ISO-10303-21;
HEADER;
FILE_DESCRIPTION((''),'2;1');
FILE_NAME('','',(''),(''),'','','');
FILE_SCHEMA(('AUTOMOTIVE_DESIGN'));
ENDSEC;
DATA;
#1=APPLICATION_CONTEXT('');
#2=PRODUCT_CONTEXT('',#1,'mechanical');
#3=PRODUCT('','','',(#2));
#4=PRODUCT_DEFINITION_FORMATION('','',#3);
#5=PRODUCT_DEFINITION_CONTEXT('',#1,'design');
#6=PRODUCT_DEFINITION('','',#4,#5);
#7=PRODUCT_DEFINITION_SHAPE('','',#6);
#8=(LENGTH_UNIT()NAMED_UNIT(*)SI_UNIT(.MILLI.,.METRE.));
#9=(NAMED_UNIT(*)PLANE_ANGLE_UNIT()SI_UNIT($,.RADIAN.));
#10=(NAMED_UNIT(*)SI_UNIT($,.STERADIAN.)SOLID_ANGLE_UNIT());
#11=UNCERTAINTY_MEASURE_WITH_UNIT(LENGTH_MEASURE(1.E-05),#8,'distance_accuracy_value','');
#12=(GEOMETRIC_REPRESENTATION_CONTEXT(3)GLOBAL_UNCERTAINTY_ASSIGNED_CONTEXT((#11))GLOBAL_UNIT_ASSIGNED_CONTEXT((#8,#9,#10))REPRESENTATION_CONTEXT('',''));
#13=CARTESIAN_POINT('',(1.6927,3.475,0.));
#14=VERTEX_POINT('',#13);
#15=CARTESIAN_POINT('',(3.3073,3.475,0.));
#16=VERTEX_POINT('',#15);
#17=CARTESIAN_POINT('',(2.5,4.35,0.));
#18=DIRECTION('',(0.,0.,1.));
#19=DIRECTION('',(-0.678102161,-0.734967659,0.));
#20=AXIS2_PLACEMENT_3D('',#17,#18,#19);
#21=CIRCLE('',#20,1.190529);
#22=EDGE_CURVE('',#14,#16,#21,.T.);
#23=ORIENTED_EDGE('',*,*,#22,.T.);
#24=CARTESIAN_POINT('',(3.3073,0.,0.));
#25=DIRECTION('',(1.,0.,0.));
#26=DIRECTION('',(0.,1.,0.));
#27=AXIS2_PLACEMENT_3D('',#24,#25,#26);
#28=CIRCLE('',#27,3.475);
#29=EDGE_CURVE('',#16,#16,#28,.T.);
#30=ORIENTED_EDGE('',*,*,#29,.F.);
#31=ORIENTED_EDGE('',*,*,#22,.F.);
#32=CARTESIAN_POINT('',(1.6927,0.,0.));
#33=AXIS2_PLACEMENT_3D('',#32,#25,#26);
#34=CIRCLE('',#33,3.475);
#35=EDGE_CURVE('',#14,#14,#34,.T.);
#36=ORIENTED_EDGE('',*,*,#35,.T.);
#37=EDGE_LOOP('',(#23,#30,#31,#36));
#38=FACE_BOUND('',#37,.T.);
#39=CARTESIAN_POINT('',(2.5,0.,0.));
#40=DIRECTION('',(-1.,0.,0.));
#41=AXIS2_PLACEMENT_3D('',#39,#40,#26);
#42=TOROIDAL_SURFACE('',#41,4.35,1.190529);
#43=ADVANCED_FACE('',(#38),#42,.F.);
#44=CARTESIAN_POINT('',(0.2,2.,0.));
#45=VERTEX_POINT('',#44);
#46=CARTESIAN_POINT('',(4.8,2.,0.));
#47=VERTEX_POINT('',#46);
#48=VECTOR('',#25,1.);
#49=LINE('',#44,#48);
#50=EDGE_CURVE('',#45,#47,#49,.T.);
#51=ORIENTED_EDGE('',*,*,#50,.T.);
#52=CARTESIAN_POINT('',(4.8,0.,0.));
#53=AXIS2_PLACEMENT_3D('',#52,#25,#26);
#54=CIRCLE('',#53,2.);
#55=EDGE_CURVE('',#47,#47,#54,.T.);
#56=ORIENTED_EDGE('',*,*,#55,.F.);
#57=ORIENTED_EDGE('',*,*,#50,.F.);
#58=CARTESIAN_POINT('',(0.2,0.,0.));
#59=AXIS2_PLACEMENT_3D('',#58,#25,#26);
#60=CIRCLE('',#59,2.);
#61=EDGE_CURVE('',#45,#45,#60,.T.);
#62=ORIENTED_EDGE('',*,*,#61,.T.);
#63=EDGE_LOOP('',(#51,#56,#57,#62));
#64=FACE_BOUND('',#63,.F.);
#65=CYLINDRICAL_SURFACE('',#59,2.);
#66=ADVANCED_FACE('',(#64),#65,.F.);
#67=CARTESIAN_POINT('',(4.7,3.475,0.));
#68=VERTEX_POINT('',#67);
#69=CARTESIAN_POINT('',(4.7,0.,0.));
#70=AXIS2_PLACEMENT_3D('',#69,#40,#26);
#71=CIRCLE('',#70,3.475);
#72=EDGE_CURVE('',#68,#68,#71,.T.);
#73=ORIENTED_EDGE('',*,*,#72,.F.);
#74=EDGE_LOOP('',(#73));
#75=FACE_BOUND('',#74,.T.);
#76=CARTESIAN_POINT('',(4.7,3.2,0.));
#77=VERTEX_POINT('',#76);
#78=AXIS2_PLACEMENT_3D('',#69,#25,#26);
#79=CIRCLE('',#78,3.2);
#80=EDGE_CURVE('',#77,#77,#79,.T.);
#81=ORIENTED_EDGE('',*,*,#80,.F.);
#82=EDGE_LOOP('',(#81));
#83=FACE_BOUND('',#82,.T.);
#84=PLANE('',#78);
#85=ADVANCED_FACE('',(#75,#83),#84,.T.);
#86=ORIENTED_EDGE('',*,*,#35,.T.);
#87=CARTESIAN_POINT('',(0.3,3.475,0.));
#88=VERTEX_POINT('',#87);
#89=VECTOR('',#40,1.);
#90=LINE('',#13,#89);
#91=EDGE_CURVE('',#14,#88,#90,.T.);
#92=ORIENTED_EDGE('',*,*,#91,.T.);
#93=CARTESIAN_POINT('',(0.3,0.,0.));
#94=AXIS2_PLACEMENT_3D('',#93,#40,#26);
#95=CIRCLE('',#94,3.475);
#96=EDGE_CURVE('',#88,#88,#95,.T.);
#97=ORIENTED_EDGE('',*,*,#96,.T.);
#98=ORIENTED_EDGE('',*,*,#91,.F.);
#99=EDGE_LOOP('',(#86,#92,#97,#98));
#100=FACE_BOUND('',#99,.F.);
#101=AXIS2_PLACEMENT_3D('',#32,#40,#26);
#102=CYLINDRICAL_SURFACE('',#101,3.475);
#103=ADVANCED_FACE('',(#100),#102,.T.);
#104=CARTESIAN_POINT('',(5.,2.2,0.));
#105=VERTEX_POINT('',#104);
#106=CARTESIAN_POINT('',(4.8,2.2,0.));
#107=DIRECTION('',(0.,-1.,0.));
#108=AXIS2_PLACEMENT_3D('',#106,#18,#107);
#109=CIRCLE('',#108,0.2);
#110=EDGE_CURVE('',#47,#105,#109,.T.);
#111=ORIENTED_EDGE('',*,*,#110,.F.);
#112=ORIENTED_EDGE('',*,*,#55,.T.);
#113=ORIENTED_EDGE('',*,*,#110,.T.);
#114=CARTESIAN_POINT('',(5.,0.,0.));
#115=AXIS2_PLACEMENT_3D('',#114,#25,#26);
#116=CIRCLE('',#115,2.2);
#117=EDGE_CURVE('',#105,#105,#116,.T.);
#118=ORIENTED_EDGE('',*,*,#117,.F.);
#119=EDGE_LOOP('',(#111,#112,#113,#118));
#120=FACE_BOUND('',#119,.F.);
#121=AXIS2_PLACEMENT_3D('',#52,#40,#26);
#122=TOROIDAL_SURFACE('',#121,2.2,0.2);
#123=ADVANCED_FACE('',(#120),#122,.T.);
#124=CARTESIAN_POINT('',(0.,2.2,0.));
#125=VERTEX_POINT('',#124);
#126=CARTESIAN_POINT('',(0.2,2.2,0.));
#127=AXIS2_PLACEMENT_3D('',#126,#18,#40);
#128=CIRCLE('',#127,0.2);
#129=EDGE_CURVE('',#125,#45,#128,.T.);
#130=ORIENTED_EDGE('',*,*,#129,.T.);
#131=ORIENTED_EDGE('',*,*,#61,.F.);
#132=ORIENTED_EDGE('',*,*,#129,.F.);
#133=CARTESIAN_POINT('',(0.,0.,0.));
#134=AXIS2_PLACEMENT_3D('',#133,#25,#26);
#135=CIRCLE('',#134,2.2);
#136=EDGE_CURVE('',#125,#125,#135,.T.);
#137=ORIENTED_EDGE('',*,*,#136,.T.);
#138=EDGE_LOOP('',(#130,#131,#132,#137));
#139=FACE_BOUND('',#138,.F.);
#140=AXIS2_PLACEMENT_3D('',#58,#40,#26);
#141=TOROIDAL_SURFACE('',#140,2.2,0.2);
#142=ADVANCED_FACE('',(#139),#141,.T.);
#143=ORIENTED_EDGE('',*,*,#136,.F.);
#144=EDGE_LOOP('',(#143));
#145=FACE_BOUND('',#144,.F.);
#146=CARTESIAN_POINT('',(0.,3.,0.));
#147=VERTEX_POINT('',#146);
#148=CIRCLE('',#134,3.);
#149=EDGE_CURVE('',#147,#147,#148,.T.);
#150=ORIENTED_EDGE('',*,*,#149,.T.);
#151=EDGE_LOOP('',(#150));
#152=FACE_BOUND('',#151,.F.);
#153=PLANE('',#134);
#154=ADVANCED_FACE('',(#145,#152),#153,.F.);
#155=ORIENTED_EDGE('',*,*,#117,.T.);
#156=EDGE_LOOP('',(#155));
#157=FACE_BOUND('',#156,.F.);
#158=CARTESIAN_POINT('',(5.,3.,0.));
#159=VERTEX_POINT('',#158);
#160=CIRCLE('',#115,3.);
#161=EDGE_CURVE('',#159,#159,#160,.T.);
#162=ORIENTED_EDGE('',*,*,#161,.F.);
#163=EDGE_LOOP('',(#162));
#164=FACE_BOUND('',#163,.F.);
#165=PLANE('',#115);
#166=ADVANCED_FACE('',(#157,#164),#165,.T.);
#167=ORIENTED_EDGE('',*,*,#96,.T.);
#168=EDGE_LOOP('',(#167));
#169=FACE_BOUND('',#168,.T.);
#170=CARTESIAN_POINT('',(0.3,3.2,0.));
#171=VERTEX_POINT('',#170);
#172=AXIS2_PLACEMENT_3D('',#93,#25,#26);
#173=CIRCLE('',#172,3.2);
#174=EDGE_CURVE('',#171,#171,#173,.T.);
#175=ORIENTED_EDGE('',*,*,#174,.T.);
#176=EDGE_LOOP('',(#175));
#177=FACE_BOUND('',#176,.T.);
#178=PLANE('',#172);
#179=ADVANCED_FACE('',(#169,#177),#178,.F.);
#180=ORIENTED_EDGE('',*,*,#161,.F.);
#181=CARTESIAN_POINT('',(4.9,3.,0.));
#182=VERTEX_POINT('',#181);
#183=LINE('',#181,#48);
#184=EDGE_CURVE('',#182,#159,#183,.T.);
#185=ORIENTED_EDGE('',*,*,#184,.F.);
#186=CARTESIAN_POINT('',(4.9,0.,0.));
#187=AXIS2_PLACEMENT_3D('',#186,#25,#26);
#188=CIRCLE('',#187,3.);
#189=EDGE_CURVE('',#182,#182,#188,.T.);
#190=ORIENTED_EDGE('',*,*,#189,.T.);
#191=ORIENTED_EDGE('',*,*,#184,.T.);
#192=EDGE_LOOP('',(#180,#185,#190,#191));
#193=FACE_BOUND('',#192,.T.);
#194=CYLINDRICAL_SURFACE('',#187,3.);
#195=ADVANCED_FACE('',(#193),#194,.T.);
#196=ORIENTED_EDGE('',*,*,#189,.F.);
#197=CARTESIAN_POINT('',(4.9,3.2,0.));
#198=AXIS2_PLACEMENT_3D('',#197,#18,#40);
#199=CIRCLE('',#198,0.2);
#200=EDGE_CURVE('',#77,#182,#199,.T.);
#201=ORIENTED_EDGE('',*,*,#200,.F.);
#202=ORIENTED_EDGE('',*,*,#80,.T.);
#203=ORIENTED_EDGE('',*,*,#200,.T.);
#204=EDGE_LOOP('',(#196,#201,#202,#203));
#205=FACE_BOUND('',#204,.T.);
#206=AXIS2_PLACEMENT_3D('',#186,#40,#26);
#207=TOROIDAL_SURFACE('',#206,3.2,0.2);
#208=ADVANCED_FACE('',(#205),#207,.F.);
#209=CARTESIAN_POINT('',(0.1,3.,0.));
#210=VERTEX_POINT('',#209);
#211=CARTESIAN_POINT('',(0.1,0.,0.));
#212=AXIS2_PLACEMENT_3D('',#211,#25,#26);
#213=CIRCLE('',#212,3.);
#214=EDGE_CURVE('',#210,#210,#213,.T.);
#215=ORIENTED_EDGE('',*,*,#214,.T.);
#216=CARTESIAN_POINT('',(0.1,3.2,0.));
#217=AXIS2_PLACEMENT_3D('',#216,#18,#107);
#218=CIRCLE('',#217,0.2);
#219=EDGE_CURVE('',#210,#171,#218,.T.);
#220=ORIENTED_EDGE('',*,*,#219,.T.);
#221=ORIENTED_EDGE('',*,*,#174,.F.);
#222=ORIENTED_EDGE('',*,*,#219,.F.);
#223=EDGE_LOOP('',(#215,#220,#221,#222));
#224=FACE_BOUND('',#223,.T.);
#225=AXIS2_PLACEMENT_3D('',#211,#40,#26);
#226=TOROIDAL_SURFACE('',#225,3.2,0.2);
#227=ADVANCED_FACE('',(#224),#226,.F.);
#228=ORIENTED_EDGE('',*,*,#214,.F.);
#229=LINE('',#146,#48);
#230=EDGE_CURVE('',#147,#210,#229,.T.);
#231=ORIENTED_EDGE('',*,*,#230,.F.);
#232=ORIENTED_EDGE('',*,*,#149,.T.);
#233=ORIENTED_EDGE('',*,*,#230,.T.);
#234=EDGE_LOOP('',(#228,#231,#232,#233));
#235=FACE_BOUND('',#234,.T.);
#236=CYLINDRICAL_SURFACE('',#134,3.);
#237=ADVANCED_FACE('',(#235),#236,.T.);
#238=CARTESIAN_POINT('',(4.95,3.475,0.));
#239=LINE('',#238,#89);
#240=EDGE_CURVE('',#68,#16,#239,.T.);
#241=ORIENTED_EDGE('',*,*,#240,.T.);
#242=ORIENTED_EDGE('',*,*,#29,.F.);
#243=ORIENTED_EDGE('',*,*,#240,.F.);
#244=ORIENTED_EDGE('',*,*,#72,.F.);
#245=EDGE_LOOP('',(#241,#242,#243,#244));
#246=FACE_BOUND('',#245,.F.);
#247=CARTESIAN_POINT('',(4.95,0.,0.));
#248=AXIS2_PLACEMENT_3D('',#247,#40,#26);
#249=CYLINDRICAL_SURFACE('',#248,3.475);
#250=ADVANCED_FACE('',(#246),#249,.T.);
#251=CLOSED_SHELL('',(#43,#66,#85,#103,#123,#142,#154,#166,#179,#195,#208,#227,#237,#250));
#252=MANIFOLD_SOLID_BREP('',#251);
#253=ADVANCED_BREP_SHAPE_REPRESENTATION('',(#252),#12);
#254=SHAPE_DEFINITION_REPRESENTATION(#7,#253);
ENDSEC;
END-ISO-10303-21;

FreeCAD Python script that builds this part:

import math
import FreeCAD as App
import Part
import Sketcher

V = App.Vector

doc = App.newDocument("Part")
body = doc.addObject("PartDesign::Body", "Body")

sketch1 = doc.addObject("Sketcher::SketchObject", "Sketch")
body.addObject(sketch1)
sketch1.AttachmentSupport = (doc.XY_Plane, [""])
sketch1.MapMode = "FlatFace"
sketch1.addGeometry([
    Part.ArcOfCircle(Part.Circle(V(0.05, 3.425, 0), V(0, 0, 1), 0.05), math.radians(90), math.radians(180)),
    Part.LineSegment(V(0, 3.425, 0), V(0, 2.2, 0)),
    Part.ArcOfCircle(Part.Circle(V(0.2, 2.2, 0), V(0, 0, 1), 0.2), math.radians(180), math.radians(270)),
    Part.LineSegment(V(0.2, 2, 0), V(4.8, 2, 0)),
    Part.ArcOfCircle(Part.Circle(V(4.8, 2.2, 0), V(0, 0, 1), 0.2), math.radians(-90), math.radians(0)),
    Part.LineSegment(V(5, 2.2, 0), V(5, 3.425, 0)),
    Part.ArcOfCircle(Part.Circle(V(4.95, 3.425, 0), V(0, 0, 1), 0.05), math.radians(0), math.radians(90)),
    Part.LineSegment(V(4.95, 3.475, 0), V(3.3073, 3.475, 0)),
    Part.ArcOfCircle(Part.Circle(V(2.5, 4.35, 0), V(0, 0, 1), 1.190529), math.radians(-132.695517), math.radians(-47.304483)),
    Part.LineSegment(V(1.6927, 3.475, 0), V(0.05, 3.475, 0)),
], False)
sketch1.addConstraint([
    Sketcher.Constraint("Tangent", 0, 2, 1, 1),
    Sketcher.Constraint("Tangent", 1, 2, 2, 1),
    Sketcher.Constraint("Tangent", 2, 2, 3, 1),
    Sketcher.Constraint("Tangent", 3, 2, 4, 1),
    Sketcher.Constraint("Tangent", 4, 2, 5, 1),
    Sketcher.Constraint("Tangent", 5, 2, 6, 1),
    Sketcher.Constraint("Tangent", 6, 2, 7, 1),
    Sketcher.Constraint("Coincident", 7, 2, 8, 2),
    Sketcher.Constraint("Coincident", 8, 1, 9, 1),
    Sketcher.Constraint("Tangent", 9, 2, 0, 1),
    Sketcher.Constraint("Vertical", 1),
    Sketcher.Constraint("Horizontal", 3),
    Sketcher.Constraint("Vertical", 5),
    Sketcher.Constraint("Horizontal", 7),
    Sketcher.Constraint("Horizontal", 9),
    Sketcher.Constraint("Equal", 2, 4),
    Sketcher.Constraint("Equal", 0, 6),
    Sketcher.Constraint("PointOnObject", 0, 2, -2),
    Sketcher.Constraint("Horizontal", 0, 3, 6, 3),
    Sketcher.Constraint("Equal", 7, 9),
    Sketcher.Constraint("Radius", 2, 0.2),
    Sketcher.Constraint("Radius", 0, 0.05),
    Sketcher.Constraint("DistanceX", 3, 1, 3, 2, 4.6),
    Sketcher.Constraint("DistanceY", -1, 1, 2, 2, 2.0),
    Sketcher.Constraint("Radius", 8, 1.1905),
    Sketcher.Constraint("DistanceY", 1, 2, 1, 1, 1.225),
    Sketcher.Constraint("DistanceY", -1, 1, 8, 3, 4.35),
])
revolution = doc.addObject("PartDesign::Revolution", "Revolution")
body.addObject(revolution)
revolution.Profile = sketch1
revolution.ReferenceAxis = (sketch1, ["H_Axis"])
revolution.Angle = 360

sketch2 = doc.addObject("Sketcher::SketchObject", "Sketch001")
body.addObject(sketch2)
sketch2.AttachmentSupport = (doc.XY_Plane, [""])
sketch2.MapMode = "FlatFace"
sketch2.addGeometry([
    Part.LineSegment(V(5, 7.35, 0), V(0, 7.35, 0)),
    Part.LineSegment(V(0, 7.35, 0), V(0, 3, 0)),
    Part.LineSegment(V(0, 3, 0), V(0.1, 3, 0)),
    Part.ArcOfCircle(Part.Circle(V(0.1, 3.2, 0), V(0, 0, 1), 0.2), math.radians(-90), math.radians(0)),
    Part.LineSegment(V(0.3, 3.2, 0), V(0.3, 7.15, 0)),
    Part.LineSegment(V(0.3, 7.15, 0), V(4.7, 7.15, 0)),
    Part.LineSegment(V(4.7, 7.15, 0), V(4.7, 3.2, 0)),
    Part.ArcOfCircle(Part.Circle(V(4.9, 3.2, 0), V(0, 0, 1), 0.2), math.radians(180), math.radians(270)),
    Part.LineSegment(V(4.9, 3, 0), V(5, 3, 0)),
    Part.LineSegment(V(5, 3, 0), V(5, 7.35, 0)),
], False)
sketch2.addConstraint([
    Sketcher.Constraint("Coincident", 0, 2, 1, 1),
    Sketcher.Constraint("Coincident", 1, 2, 2, 1),
    Sketcher.Constraint("Tangent", 2, 2, 3, 1),
    Sketcher.Constraint("Tangent", 3, 2, 4, 1),
    Sketcher.Constraint("Coincident", 4, 2, 5, 1),
    Sketcher.Constraint("Coincident", 5, 2, 6, 1),
    Sketcher.Constraint("Tangent", 6, 2, 7, 1),
    Sketcher.Constraint("Tangent", 7, 2, 8, 1),
    Sketcher.Constraint("Coincident", 8, 2, 9, 1),
    Sketcher.Constraint("Coincident", 9, 2, 0, 1),
    Sketcher.Constraint("Horizontal", 0),
    Sketcher.Constraint("Vertical", 1),
    Sketcher.Constraint("Horizontal", 2),
    Sketcher.Constraint("Vertical", 4),
    Sketcher.Constraint("Horizontal", 5),
    Sketcher.Constraint("Vertical", 6),
    Sketcher.Constraint("Horizontal", 8),
    Sketcher.Constraint("Vertical", 9),
    Sketcher.Constraint("Equal", 3, 7),
    Sketcher.Constraint("PointOnObject", 0, 2, -2),
    Sketcher.Constraint("Horizontal", 3, 3, 7, 3),
    Sketcher.Constraint("Equal", 2, 8),
    Sketcher.Constraint("Radius", 3, 0.2),
    Sketcher.Constraint("DistanceX", 0, 2, 0, 1, 5.0),
    Sketcher.Constraint("DistanceX", 2, 1, 2, 2, 0.1),
    Sketcher.Constraint("DistanceY", -1, 1, 1, 2, 3.0),
    Sketcher.Constraint("DistanceY", 1, 2, 1, 1, 4.35),
    Sketcher.Constraint("DistanceY", 4, 1, 4, 2, 3.95),
])
groove = doc.addObject("PartDesign::Groove", "Groove")
body.addObject(groove)
groove.Profile = sketch2
groove.ReferenceAxis = (sketch2, ["H_Axis"])
groove.Angle = 360

doc.recompute()
